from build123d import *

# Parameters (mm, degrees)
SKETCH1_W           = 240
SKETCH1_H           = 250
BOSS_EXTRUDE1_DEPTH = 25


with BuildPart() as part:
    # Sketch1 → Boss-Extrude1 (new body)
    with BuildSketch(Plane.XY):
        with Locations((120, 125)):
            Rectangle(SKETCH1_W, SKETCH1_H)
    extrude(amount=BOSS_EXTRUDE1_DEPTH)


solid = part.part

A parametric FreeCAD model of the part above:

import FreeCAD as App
import Part
import Sketcher
from FreeCAD import Vector


def add_polygon(sketch, points):
    """Adds a closed chain of lines whose ends are joined by coincident constraints."""
    first, n = sketch.GeometryCount, len(points)
    for a, b in zip(points, points[1:] + points[:1]):
        sketch.addGeometry(Part.LineSegment(App.Vector(*a, 0), App.Vector(*b, 0)), False)
    for i in range(n):
        sketch.addConstraint(Sketcher.Constraint("Coincident", first + i, 2, first + (i + 1) % n, 1))

doc = App.newDocument("Part")
body = doc.addObject("PartDesign::Body", "Body")

sketch1 = doc.addObject("Sketcher::SketchObject", "Sketch")
body.addObject(sketch1)
sketch1.AttachmentSupport = (doc.XY_Plane, [""])
sketch1.MapMode = "FlatFace"
add_polygon(sketch1, [(0, 250), (0, 0), (240, 0), (240, 250)])
sketch1.addConstraint(Sketcher.Constraint("Vertical", 0))
sketch1.addConstraint(Sketcher.Constraint("Horizontal", 1))
sketch1.addConstraint(Sketcher.Constraint("Vertical", 2))
sketch1.addConstraint(Sketcher.Constraint("Horizontal", 3))
sketch1.addConstraint(Sketcher.Constraint("Coincident", 0, 2, -1, 1))
sketch1.addConstraint(Sketcher.Constraint("DistanceX", 1, 1, 1, 2, 240.0))
sketch1.addConstraint(Sketcher.Constraint("DistanceY", 0, 2, 0, 1, 250.0))
pad1 = doc.addObject("PartDesign::Pad", "Pad")
body.addObject(pad1)
pad1.Profile = sketch1
pad1.Length = 25

doc.recompute()
